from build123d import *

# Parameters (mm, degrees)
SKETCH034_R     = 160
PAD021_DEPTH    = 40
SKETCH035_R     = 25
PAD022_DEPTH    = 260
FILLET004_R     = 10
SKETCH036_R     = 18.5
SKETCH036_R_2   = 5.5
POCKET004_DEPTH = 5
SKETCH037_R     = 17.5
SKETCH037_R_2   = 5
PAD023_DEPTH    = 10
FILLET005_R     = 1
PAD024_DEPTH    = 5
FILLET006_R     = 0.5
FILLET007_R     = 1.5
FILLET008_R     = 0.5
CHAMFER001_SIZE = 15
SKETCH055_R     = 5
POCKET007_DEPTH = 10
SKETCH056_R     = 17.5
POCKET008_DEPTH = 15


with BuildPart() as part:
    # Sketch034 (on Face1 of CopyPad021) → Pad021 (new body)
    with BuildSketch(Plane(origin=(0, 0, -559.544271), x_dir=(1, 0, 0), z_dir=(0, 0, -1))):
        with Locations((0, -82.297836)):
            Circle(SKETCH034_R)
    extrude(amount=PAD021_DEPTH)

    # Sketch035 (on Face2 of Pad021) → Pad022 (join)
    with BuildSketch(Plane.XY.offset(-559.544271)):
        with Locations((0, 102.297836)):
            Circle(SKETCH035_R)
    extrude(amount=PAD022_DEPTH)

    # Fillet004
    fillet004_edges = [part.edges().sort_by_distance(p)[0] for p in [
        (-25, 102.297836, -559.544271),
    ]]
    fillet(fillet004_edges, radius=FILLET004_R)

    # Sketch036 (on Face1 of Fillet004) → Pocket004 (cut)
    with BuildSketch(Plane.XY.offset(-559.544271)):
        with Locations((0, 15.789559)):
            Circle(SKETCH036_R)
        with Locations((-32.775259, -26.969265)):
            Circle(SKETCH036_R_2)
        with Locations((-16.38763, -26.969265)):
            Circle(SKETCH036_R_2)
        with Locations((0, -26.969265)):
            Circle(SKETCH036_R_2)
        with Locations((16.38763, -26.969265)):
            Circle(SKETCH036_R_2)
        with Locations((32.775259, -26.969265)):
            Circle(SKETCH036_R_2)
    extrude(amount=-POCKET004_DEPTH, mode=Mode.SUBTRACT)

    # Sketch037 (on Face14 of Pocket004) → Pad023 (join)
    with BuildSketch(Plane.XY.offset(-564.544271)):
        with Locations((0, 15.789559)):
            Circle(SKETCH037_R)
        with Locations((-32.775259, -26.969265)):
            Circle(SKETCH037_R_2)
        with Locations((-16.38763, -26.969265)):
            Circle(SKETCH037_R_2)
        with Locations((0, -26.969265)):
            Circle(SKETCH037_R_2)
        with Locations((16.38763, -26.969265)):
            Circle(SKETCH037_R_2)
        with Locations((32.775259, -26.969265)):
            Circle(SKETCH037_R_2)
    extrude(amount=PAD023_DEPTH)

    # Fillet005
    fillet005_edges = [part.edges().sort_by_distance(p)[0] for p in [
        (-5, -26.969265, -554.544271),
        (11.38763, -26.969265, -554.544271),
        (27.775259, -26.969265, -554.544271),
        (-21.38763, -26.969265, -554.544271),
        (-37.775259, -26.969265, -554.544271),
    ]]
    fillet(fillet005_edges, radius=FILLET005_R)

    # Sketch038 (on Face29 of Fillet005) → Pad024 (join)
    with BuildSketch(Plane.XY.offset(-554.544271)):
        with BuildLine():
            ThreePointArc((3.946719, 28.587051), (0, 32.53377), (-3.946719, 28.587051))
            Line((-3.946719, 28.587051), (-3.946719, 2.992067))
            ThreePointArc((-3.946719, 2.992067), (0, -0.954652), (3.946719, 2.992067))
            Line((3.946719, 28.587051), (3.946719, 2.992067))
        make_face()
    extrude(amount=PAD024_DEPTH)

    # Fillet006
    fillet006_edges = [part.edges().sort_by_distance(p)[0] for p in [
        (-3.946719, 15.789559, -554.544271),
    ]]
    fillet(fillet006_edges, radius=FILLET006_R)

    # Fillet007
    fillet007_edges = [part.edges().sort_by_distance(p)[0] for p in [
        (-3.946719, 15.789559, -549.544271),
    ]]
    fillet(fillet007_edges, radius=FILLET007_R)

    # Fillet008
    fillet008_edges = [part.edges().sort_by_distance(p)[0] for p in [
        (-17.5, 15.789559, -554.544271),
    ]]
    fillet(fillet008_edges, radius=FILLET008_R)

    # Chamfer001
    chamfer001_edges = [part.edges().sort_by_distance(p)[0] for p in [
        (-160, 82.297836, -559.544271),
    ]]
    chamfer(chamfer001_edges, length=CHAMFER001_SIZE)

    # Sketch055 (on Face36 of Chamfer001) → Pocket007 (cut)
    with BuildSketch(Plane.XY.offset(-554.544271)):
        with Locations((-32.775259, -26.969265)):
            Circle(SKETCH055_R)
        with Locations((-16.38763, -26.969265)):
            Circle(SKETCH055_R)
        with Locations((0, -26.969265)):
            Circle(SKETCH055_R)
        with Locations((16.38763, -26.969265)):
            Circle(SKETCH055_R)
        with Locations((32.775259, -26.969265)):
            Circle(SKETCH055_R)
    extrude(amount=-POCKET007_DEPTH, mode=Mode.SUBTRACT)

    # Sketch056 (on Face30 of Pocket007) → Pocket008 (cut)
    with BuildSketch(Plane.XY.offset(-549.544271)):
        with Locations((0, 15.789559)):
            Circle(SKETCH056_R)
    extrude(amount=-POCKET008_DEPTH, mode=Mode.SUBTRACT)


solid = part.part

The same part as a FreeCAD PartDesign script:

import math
import FreeCAD as App
import Part
import Sketcher
from FreeCAD import Vector
Q = App.Units.Quantity


def edges_at(feature, points):
    """Names of the edges that pass closest to the given points."""
    edges = feature.Shape.Edges
    near = lambda p: min(range(len(edges)), key=lambda i: edges[i].distToShape(Part.Vertex(*p))[0])
    return sorted({f"Edge{near(p) + 1}" for p in points})

doc = App.newDocument("Part")
params = doc.addObject("Spreadsheet::Sheet", "Params")
for row, (alias, value) in enumerate([
    ("sketch1_diameter", "320 mm"),
    ("pad1_length", "40 mm"),
    ("sketch2_diameter", "50 mm"),
    ("pad2_length", "260 mm"),
    ("fillet_radius", "10 mm"),
    ("sketch3_diameter", "37 mm"),
    ("sketch3_diameter2", "11 mm"),
    ("pocket1_length", "5 mm"),
    ("sketch4_diameter", "35 mm"),
    ("sketch4_diameter2", "10 mm"),
    ("pad3_length", "10 mm"),
    ("fillet2_radius", "1 mm"),
    ("pad4_length", "5 mm"),
    ("fillet3_radius", "0.5 mm"),
    ("fillet4_radius", "1.5 mm"),
    ("fillet5_radius", "0.5 mm"),
    ("chamfer_size", "15 mm"),
    ("sketch6_diameter", "10 mm"),
    ("pocket2_length", "10 mm"),
    ("sketch7_diameter", "35 mm"),
    ("pocket3_length", "15 mm"),
], start=1):
    params.set(f"A{row}", alias)
    params.set(f"B{row}", "=" + value)
    params.setAlias(f"B{row}", alias)

body = doc.addObject("PartDesign::Body", "Body")

sketch1 = body.newObject("Sketcher::SketchObject", "Sketch")
sketch1.AttachmentSupport = (doc.getObject("XY_Plane"), [""])
sketch1.MapMode = "FlatFace"
sketch1.AttachmentOffset = App.Placement(Vector(0, 0, -559.544271), App.Rotation())
sketch1.addGeometry(Part.Circle(Vector(0, 82, 0), Vector(0, 0, 1), 160), False)
sketch1.addConstraint(Sketcher.Constraint("PointOnObject", 0, 3, -2))
sketch1.addConstraint(Sketcher.Constraint("Diameter", 0, Q("320 mm")))
sketch1.addConstraint(Sketcher.Constraint("DistanceY", -1, 1, 0, 3, Q("82.297836 mm")))
sketch1.setExpression("Constraints[1]", "Params.sketch1_diameter")
pad1 = body.newObject("PartDesign::Pad", "Pad")
pad1.Profile = sketch1
pad1.setExpression("Length", "Params.pad1_length")
pad1.Reversed = True

sketch2 = body.newObject("Sketcher::SketchObject", "Sketch001")
sketch2.AttachmentSupport = (doc.getObject("XY_Plane"), [""])
sketch2.MapMode = "FlatFace"
sketch2.AttachmentOffset = App.Placement(Vector(0, 0, -559.544271), App.Rotation())
sketch2.addGeometry(Part.Circle(Vector(0, 102, 0), Vector(0, 0, 1), 25), False)
sketch2.addConstraint(Sketcher.Constraint("PointOnObject", 0, 3, -2))
sketch2.addConstraint(Sketcher.Constraint("Diameter", 0, Q("50 mm")))
sketch2.addConstraint(Sketcher.Constraint("DistanceY", -1, 1, 0, 3, Q("102.297836 mm")))
sketch2.setExpression("Constraints[1]", "Params.sketch2_diameter")
pad2 = body.newObject("PartDesign::Pad", "Pad001")
pad2.Profile = sketch2
pad2.setExpression("Length", "Params.pad2_length")
doc.recompute()

fillet = body.newObject("PartDesign::Fillet", "Fillet")
fillet.Base = (pad2, edges_at(pad2, [(-25, 102.298, -559.544)]))
fillet.setExpression("Radius", "Params.fillet_radius")

sketch3 = body.newObject("Sketcher::SketchObject", "Sketch002")
sketch3.AttachmentSupport = (doc.getObject("XY_Plane"), [""])
sketch3.MapMode = "FlatFace"
sketch3.AttachmentOffset = App.Placement(Vector(0, 0, -559.544271), App.Rotation())
sketch3.addGeometry(Part.Circle(Vector(0, 16, 0), Vector(0, 0, 1), 18), False)
sketch3.addGeometry(Part.Circle(Vector(-33, -27, 0), Vector(0, 0, 1), 6), False)
sketch3.addGeometry(Part.Circle(Vector(-16, -27, 0), Vector(0, 0, 1), 6), False)
sketch3.addGeometry(Part.Circle(Vector(0, -27, 0), Vector(0, 0, 1), 6), False)
sketch3.addGeometry(Part.Circle(Vector(16, -27, 0), Vector(0, 0, 1), 6), False)
sketch3.addGeometry(Part.Circle(Vector(33, -27, 0), Vector(0, 0, 1), 6), False)
sketch3.addConstraint(Sketcher.Constraint("Equal", 1, 2))
sketch3.addConstraint(Sketcher.Constraint("Equal", 2, 3))
sketch3.addConstraint(Sketcher.Constraint("Equal", 3, 4))
sketch3.addConstraint(Sketcher.Constraint("Equal", 4, 5))
sketch3.addConstraint(Sketcher.Constraint("Symmetric", 2, 3, 4, 3, -2))
sketch3.addConstraint(Sketcher.Constraint("Symmetric", 1, 3, 5, 3, -2))
sketch3.addConstraint(Sketcher.Constraint("PointOnObject", 0, 3, -2))
sketch3.addConstraint(Sketcher.Constraint("PointOnObject", 3, 3, -2))
sketch3.addConstraint(Sketcher.Constraint("Horizontal", 1, 3, 2, 3))
sketch3.addConstraint(Sketcher.Constraint("Horizontal", 2, 3, 3, 3))
sketch3.addConstraint(Sketcher.Constraint("Diameter", 0, Q("37 mm")))
sketch3.addConstraint(Sketcher.Constraint("Diameter", 1, Q("11 mm")))
sketch3.addConstraint(Sketcher.Constraint("DistanceY", -1, 1, 0, 3, Q("15.789559 mm")))
sketch3.addConstraint(Sketcher.Constraint("DistanceX", 1, 3, -1, 1, Q("32.775259 mm")))
sketch3.addConstraint(Sketcher.Constraint("DistanceX", 2, 3, -1, 1, Q("16.38763 mm")))
sketch3.addConstraint(Sketcher.Constraint("DistanceY", 1, 3, -1, 1, Q("26.969265 mm")))
sketch3.setExpression("Constraints[10]", "Params.sketch3_diameter")
sketch3.setExpression("Constraints[11]", "Params.sketch3_diameter2")
pocket1 = body.newObject("PartDesign::Pocket", "Pocket")
pocket1.Profile = sketch3
pocket1.setExpression("Length", "Params.pocket1_length")

sketch4 = body.newObject("Sketcher::SketchObject", "Sketch003")
sketch4.AttachmentSupport = (doc.getObject("XY_Plane"), [""])
sketch4.MapMode = "FlatFace"
sketch4.AttachmentOffset = App.Placement(Vector(0, 0, -564.544271), App.Rotation())
sketch4.addGeometry(Part.Circle(Vector(0, 16, 0), Vector(0, 0, 1), 18), False)
sketch4.addGeometry(Part.Circle(Vector(-33, -27, 0), Vector(0, 0, 1), 5), False)
sketch4.addGeometry(Part.Circle(Vector(-16, -27, 0), Vector(0, 0, 1), 5), False)
sketch4.addGeometry(Part.Circle(Vector(0, -27, 0), Vector(0, 0, 1), 5), False)
sketch4.addGeometry(Part.Circle(Vector(16, -27, 0), Vector(0, 0, 1), 5), False)
sketch4.addGeometry(Part.Circle(Vector(33, -27, 0), Vector(0, 0, 1), 5), False)
sketch4.addConstraint(Sketcher.Constraint("Equal", 1, 2))
sketch4.addConstraint(Sketcher.Constraint("Equal", 2, 3))
sketch4.addConstraint(Sketcher.Constraint("Equal", 3, 4))
sketch4.addConstraint(Sketcher.Constraint("Equal", 4, 5))
sketch4.addConstraint(Sketcher.Constraint("Symmetric", 2, 3, 4, 3, -2))
sketch4.addConstraint(Sketcher.Constraint("Symmetric", 1, 3, 5, 3, -2))
sketch4.addConstraint(Sketcher.Constraint("PointOnObject", 0, 3, -2))
sketch4.addConstraint(Sketcher.Constraint("PointOnObject", 3, 3, -2))
sketch4.addConstraint(Sketcher.Constraint("Horizontal", 1, 3, 2, 3))
sketch4.addConstraint(Sketcher.Constraint("Horizontal", 2, 3, 3, 3))
sketch4.addConstraint(Sketcher.Constraint("Diameter", 0, Q("35 mm")))
sketch4.addConstraint(Sketcher.Constraint("Diameter", 1, Q("10 mm")))
sketch4.addConstraint(Sketcher.Constraint("DistanceY", -1, 1, 0, 3, Q("15.789559 mm")))
sketch4.addConstraint(Sketcher.Constraint("DistanceX", 1, 3, -1, 1, Q("32.775259 mm")))
sketch4.addConstraint(Sketcher.Constraint("DistanceX", 2, 3, -1, 1, Q("16.38763 mm")))
sketch4.addConstraint(Sketcher.Constraint("DistanceY", 1, 3, -1, 1, Q("26.969265 mm")))
sketch4.setExpression("Constraints[10]", "Params.sketch4_diameter")
sketch4.setExpression("Constraints[11]", "Params.sketch4_diameter2")
pad3 = body.newObject("PartDesign::Pad", "Pad002")
pad3.Profile = sketch4
pad3.setExpression("Length", "Params.pad3_length")
doc.recompute()

fillet2 = body.newObject("PartDesign::Fillet", "Fillet001")
fillet2.Base = (pad3, edges_at(pad3, [
    (-5, -26.969, -554.544),
    (11.388, -26.969, -554.544),
    (27.775, -26.969, -554.544),
    (-21.388, -26.969, -554.544),
    (-37.775, -26.969, -554.544),
]))
fillet2.setExpression("Radius", "Params.fillet2_radius")

sketch5 = body.newObject("Sketcher::SketchObject", "Sketch004")
sketch5.AttachmentSupport = (doc.getObject("XY_Plane"), [""])
sketch5.MapMode = "FlatFace"
sketch5.AttachmentOffset = App.Placement(Vector(0, 0, -554.544271), App.Rotation())
sketch5.addGeometry(Part.ArcOfCircle(Part.Circle(Vector(0, 28.6, 0), Vector(0, 0, 1), 3.9), math.radians(0), math.radians(180)), False)
sketch5.addGeometry(Part.LineSegment(Vector(-3.9, 28.6, 0), Vector(-3.9, 3, 0)), False)
sketch5.addGeometry(Part.ArcOfCircle(Part.Circle(Vector(0, 3, 0), Vector(0, 0, 1), 3.9), math.radians(180), math.radians(360)), False)
sketch5.addGeometry(Part.LineSegment(Vector(3.9, 3, 0), Vector(3.9, 28.6, 0)), False)
sketch5.addConstraint(Sketcher.Constraint("Tangent", 0, 2, 1, 1))
sketch5.addConstraint(Sketcher.Constraint("Tangent", 1, 2, 2, 1))
sketch5.addConstraint(Sketcher.Constraint("Tangent", 2, 2, 3, 1))
sketch5.addConstraint(Sketcher.Constraint("Tangent", 3, 2, 0, 1))
sketch5.addConstraint(Sketcher.Constraint("Vertical", 1))
sketch5.addConstraint(Sketcher.Constraint("Vertical", 3))
sketch5.addConstraint(Sketcher.Constraint("PointOnObject", 0, 3, -2))
sketch5.addConstraint(Sketcher.Constraint("Radius", 0, Q("3.946719 mm")))
sketch5.addConstraint(Sketcher.Constraint("DistanceY", 1, 2, 1, 1, Q("25.594984 mm")))
sketch5.addConstraint(Sketcher.Constraint("DistanceY", -1, 1, 0, 3, Q("28.587051 mm")))
pad4 = body.newObject("PartDesign::Pad", "Pad003")
pad4.Profile = sketch5
pad4.setExpression("Length", "Params.pad4_length")
doc.recompute()

fillet3 = body.newObject("PartDesign::Fillet", "Fillet002")
fillet3.Base = (pad4, edges_at(pad4, [(-3.947, 15.79, -554.544)]))
fillet3.setExpression("Radius", "Params.fillet3_radius")
doc.recompute()

fillet4 = body.newObject("PartDesign::Fillet", "Fillet003")
fillet4.Base = (fillet3, edges_at(fillet3, [(-3.947, 15.79, -549.544)]))
fillet4.setExpression("Radius", "Params.fillet4_radius")
doc.recompute()

fillet5 = body.newObject("PartDesign::Fillet", "Fillet004")
fillet5.Base = (fillet4, edges_at(fillet4, [(-17.5, 15.79, -554.544)]))
fillet5.setExpression("Radius", "Params.fillet5_radius")
doc.recompute()

chamfer = body.newObject("PartDesign::Chamfer", "Chamfer")
chamfer.Base = (fillet5, edges_at(fillet5, [(-160, 82.298, -559.544)]))
chamfer.setExpression("Size", "Params.chamfer_size")

sketch6 = body.newObject("Sketcher::SketchObject", "Sketch005")
sketch6.AttachmentSupport = (doc.getObject("XY_Plane"), [""])
sketch6.MapMode = "FlatFace"
sketch6.AttachmentOffset = App.Placement(Vector(0, 0, -554.544271), App.Rotation())
sketch6.addGeometry(Part.Circle(Vector(-33, -27, 0), Vector(0, 0, 1), 5), False)
sketch6.addGeometry(Part.Circle(Vector(-16, -27, 0), Vector(0, 0, 1), 5), False)
sketch6.addGeometry(Part.Circle(Vector(0, -27, 0), Vector(0, 0, 1), 5), False)
sketch6.addGeometry(Part.Circle(Vector(16, -27, 0), Vector(0, 0, 1), 5), False)
sketch6.addGeometry(Part.Circle(Vector(33, -27, 0), Vector(0, 0, 1), 5), False)
sketch6.addConstraint(Sketcher.Constraint("Equal", 0, 1))
sketch6.addConstraint(Sketcher.Constraint("Equal", 1, 2))
sketch6.addConstraint(Sketcher.Constraint("Equal", 2, 3))
sketch6.addConstraint(Sketcher.Constraint("Equal", 3, 4))
sketch6.addConstraint(Sketcher.Constraint("Symmetric", 1, 3, 3, 3, -2))
sketch6.addConstraint(Sketcher.Constraint("Symmetric", 0, 3, 4, 3, -2))
sketch6.addConstraint(Sketcher.Constraint("PointOnObject", 2, 3, -2))
sketch6.addConstraint(Sketcher.Constraint("Horizontal", 0, 3, 1, 3))
sketch6.addConstraint(Sketcher.Constraint("Horizontal", 1, 3, 2, 3))
sketch6.addConstraint(Sketcher.Constraint("Diameter", 0, Q("10 mm")))
sketch6.addConstraint(Sketcher.Constraint("DistanceX", 0, 3, -1, 1, Q("32.775259 mm")))
sketch6.addConstraint(Sketcher.Constraint("DistanceX", 1, 3, -1, 1, Q("16.38763 mm")))
sketch6.addConstraint(Sketcher.Constraint("DistanceY", 0, 3, -1, 1, Q("26.969265 mm")))
sketch6.setExpression("Constraints[9]", "Params.sketch6_diameter")
pocket2 = body.newObject("PartDesign::Pocket", "Pocket001")
pocket2.Profile = sketch6
pocket2.setExpression("Length", "Params.pocket2_length")

sketch7 = body.newObject("Sketcher::SketchObject", "Sketch006")
sketch7.AttachmentSupport = (doc.getObject("XY_Plane"), [""])
sketch7.MapMode = "FlatFace"
sketch7.AttachmentOffset = App.Placement(Vector(0, 0, -549.544271), App.Rotation())
sketch7.addGeometry(Part.Circle(Vector(0, 16, 0), Vector(0, 0, 1), 18), False)
sketch7.addConstraint(Sketcher.Constraint("PointOnObject", 0, 3, -2))
sketch7.addConstraint(Sketcher.Constraint("Diameter", 0, Q("35 mm")))
sketch7.addConstraint(Sketcher.Constraint("DistanceY", -1, 1, 0, 3, Q("15.789559 mm")))
sketch7.setExpression("Constraints[1]", "Params.sketch7_diameter")
pocket3 = body.newObject("PartDesign::Pocket", "Pocket002")
pocket3.Profile = sketch7
pocket3.setExpression("Length", "Params.pocket3_length")

doc.recompute()
